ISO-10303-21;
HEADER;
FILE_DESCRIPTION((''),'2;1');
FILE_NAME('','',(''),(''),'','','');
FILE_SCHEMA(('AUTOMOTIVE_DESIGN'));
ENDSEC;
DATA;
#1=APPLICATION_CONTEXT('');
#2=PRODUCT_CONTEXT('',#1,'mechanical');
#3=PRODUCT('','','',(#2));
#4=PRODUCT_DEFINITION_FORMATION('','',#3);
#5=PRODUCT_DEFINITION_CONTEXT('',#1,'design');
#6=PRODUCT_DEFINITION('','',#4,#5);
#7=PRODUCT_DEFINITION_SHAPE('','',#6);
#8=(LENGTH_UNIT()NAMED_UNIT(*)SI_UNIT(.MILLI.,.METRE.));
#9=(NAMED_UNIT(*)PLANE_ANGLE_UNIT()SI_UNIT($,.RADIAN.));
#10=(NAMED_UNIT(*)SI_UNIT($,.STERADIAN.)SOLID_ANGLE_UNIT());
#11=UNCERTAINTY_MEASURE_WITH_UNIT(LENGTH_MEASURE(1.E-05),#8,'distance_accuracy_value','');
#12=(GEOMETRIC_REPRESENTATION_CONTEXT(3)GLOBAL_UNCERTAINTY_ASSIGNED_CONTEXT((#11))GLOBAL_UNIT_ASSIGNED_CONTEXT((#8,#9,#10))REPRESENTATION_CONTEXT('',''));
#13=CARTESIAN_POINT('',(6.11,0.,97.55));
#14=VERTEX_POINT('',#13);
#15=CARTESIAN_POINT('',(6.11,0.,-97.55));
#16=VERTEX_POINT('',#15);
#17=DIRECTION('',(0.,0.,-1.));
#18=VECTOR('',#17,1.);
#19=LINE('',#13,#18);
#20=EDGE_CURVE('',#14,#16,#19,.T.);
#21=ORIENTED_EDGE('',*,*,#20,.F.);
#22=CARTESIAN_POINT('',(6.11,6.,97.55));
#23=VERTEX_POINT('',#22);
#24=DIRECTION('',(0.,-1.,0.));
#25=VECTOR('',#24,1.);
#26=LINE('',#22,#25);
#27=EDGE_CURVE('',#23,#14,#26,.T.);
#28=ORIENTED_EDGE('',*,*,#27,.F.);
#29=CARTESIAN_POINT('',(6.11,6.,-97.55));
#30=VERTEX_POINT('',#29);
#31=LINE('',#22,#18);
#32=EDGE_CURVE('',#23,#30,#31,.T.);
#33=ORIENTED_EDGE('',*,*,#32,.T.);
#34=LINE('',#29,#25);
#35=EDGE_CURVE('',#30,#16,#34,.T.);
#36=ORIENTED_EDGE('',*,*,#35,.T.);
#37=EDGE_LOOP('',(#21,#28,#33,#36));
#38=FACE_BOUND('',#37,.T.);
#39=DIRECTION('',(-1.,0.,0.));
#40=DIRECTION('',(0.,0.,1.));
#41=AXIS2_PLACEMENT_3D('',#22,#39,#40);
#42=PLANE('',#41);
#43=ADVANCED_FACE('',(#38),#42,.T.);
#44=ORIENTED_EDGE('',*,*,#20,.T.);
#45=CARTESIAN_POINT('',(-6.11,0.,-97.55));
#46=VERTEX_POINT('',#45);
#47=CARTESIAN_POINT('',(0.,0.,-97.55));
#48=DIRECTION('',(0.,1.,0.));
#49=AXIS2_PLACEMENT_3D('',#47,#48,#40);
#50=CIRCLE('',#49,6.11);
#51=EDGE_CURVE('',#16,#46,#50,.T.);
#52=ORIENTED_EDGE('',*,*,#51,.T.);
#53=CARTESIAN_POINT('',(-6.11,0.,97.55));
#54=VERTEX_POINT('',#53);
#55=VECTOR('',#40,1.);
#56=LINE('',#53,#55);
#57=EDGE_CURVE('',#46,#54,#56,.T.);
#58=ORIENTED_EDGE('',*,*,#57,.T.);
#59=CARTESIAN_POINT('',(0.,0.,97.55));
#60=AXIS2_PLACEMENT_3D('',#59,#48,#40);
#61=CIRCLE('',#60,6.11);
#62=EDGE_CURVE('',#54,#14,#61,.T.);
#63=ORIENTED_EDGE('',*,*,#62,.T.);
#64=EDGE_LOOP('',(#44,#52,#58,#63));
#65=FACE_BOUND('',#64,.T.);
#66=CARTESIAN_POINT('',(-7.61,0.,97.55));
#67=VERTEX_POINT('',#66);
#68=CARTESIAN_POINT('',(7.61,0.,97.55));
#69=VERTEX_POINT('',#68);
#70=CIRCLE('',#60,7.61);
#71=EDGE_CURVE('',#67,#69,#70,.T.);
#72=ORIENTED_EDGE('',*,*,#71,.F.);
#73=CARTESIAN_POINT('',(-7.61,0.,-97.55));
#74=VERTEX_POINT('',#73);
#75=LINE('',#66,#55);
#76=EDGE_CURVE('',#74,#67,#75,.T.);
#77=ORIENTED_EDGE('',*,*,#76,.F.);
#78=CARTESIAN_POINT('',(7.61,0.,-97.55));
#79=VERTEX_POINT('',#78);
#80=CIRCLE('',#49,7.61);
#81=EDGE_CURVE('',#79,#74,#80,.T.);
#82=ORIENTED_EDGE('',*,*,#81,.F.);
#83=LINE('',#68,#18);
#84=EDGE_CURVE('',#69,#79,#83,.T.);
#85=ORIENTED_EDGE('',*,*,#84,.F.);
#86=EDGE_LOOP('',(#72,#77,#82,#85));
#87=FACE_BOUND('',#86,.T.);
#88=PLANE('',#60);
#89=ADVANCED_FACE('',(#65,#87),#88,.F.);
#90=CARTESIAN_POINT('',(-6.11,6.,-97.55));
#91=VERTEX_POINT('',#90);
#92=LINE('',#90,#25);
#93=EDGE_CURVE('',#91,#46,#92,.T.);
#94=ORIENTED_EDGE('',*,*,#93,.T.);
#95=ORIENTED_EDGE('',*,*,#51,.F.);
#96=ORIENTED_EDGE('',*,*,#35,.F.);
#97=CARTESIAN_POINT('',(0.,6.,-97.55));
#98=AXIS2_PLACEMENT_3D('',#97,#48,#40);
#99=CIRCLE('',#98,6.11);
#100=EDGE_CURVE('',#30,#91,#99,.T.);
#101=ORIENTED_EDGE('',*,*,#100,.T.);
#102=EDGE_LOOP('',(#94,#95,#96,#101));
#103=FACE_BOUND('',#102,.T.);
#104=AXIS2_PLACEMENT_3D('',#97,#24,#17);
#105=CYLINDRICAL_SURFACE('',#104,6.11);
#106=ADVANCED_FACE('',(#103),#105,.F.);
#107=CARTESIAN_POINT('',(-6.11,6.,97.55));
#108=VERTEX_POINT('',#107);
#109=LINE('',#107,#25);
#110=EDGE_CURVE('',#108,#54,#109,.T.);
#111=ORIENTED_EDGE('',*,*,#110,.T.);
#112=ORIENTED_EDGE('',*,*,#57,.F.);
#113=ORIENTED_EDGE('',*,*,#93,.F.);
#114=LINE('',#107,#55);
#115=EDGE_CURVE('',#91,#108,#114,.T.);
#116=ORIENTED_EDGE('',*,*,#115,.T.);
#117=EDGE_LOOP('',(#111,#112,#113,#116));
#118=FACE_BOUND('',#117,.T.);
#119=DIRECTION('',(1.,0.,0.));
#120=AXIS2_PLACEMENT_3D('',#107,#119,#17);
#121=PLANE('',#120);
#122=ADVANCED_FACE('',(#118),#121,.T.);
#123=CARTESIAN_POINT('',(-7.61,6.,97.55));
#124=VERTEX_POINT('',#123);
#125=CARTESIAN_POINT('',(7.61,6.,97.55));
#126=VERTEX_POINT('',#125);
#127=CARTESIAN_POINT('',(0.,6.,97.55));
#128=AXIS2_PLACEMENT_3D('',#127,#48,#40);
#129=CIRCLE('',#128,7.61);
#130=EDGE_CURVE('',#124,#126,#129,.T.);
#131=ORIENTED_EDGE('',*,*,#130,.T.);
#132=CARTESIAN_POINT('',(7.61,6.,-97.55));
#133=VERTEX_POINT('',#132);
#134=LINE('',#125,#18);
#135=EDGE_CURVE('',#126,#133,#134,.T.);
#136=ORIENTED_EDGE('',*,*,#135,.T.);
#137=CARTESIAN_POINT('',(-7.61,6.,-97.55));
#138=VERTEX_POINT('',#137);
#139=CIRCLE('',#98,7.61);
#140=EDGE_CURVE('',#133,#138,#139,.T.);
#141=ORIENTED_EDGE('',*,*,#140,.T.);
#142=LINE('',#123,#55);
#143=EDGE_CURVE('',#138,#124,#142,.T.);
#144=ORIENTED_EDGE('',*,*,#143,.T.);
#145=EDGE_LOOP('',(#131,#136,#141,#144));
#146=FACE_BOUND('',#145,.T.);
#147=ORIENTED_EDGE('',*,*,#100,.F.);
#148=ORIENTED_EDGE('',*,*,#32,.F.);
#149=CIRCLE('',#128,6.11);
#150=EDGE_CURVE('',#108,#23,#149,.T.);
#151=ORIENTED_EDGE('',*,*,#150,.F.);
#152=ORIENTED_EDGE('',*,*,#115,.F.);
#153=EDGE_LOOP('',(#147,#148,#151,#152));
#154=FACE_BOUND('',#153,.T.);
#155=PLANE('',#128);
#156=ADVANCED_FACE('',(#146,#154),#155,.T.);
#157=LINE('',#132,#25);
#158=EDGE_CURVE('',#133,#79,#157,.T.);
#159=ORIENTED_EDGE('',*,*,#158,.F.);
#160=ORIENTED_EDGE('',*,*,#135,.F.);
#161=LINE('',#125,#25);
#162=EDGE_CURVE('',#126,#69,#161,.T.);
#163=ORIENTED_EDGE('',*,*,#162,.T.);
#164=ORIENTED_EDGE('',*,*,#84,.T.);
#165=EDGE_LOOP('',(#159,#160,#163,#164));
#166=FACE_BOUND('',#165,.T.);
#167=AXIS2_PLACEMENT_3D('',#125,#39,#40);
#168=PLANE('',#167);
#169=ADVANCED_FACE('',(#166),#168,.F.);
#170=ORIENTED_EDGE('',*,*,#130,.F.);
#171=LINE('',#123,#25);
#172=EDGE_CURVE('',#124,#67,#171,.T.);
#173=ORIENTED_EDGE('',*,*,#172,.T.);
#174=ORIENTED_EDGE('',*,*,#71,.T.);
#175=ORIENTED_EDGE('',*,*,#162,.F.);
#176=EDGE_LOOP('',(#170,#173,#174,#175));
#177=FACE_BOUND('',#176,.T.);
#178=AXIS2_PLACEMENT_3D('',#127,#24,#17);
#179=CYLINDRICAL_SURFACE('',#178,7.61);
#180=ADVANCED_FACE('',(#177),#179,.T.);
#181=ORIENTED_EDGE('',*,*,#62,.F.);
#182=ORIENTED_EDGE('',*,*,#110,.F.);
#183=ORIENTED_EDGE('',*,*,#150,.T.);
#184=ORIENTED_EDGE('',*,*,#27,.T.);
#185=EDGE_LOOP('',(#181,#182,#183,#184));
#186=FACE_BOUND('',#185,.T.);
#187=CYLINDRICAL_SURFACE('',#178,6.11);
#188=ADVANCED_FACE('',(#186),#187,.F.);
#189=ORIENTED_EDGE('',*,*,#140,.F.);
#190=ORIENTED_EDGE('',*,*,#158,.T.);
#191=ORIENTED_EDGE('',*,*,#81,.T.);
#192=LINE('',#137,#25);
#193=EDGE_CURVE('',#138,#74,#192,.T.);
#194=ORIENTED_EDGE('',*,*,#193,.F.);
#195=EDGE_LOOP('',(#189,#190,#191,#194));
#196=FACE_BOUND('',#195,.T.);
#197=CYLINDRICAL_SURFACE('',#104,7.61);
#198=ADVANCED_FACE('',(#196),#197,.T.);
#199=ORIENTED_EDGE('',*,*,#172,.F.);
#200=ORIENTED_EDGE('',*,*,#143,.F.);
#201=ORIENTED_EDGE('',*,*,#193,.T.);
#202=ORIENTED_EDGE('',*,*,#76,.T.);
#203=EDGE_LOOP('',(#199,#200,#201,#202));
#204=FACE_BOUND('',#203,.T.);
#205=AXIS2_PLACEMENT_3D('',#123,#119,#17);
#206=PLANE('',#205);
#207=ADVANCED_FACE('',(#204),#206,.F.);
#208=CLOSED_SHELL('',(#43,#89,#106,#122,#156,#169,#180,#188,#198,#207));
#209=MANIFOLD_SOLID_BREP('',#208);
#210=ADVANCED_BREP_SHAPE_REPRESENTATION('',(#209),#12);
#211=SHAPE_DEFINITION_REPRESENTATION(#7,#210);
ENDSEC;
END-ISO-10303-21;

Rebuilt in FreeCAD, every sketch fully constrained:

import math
import FreeCAD as App
import Part
import Sketcher

doc = App.newDocument("Part")
body = doc.addObject("PartDesign::Body", "Body")

sketch1 = body.newObject("Sketcher::SketchObject", "Sketch")
sketch1.AttachmentSupport = (doc.getObject("XZ_Plane"), [""])
sketch1.MapMode = "FlatFace"
sketch1.addGeometry([
    Part.LineSegment(App.Vector(-8, -98, 0), App.Vector(-8, 98, 0)),
    Part.ArcOfCircle(Part.Circle(App.Vector(0, 98, 0), App.Vector(0, 0, 1), 8), math.radians(0), math.radians(180)),
    Part.LineSegment(App.Vector(8, 98, 0), App.Vector(8, -98, 0)),
    Part.ArcOfCircle(Part.Circle(App.Vector(0, -98, 0), App.Vector(0, 0, 1), 8), math.radians(180), math.radians(360)),
    Part.LineSegment(App.Vector(-6, 98, 0), App.Vector(-6, -98, 0)),
    Part.ArcOfCircle(Part.Circle(App.Vector(0, -98, 0), App.Vector(0, 0, 1), 6), math.radians(180), math.radians(360)),
    Part.LineSegment(App.Vector(6, -98, 0), App.Vector(6, 98, 0)),
    Part.ArcOfCircle(Part.Circle(App.Vector(0, 98, 0), App.Vector(0, 0, 1), 6), math.radians(0), math.radians(180)),
], False)
sketch1.addConstraint([
    Sketcher.Constraint("Tangent", 0, 2, 1, 2),
    Sketcher.Constraint("Tangent", 1, 1, 2, 1),
    Sketcher.Constraint("Tangent", 2, 2, 3, 2),
    Sketcher.Constraint("Tangent", 3, 1, 0, 1),
    Sketcher.Constraint("Tangent", 4, 2, 5, 1),
    Sketcher.Constraint("Tangent", 5, 2, 6, 1),
    Sketcher.Constraint("Tangent", 6, 2, 7, 1),
    Sketcher.Constraint("Tangent", 7, 2, 4, 1),
    Sketcher.Constraint("Vertical", 0),
    Sketcher.Constraint("Vertical", 2),
    Sketcher.Constraint("Vertical", 4),
    Sketcher.Constraint("Vertical", 6),
    Sketcher.Constraint("Coincident", 5, 3, 3, 3),
    Sketcher.Constraint("Symmetric", 1, 3, 3, 3, -1, 1),
    Sketcher.Constraint("Horizontal", 7, 3, 0, 2),
    Sketcher.Constraint("Radius", 1, 7.61),
    Sketcher.Constraint("Radius", 5, 6.11),
    Sketcher.Constraint("DistanceY", 0, 1, 0, 2, 195.1),
])
pad1 = body.newObject("PartDesign::Pad", "Pad")
pad1.Profile = sketch1
pad1.Length = 6
pad1.Reversed = True

doc.recompute()
